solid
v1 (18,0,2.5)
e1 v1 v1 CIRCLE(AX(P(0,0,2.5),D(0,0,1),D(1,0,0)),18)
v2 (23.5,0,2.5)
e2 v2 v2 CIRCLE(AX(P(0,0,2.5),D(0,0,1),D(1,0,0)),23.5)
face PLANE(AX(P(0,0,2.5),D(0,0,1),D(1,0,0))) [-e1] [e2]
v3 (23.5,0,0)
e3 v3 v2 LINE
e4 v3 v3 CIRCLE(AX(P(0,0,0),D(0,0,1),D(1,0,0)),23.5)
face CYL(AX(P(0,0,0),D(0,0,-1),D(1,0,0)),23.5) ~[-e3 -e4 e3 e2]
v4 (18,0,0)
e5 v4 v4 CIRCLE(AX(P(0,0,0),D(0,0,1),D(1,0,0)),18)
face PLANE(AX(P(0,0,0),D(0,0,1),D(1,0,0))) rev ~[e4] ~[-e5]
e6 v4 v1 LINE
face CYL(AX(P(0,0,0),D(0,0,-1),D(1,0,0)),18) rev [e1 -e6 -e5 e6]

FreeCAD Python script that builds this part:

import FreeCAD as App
import Part
import Sketcher
from FreeCAD import Vector

doc = App.newDocument("Part")
body = doc.addObject("PartDesign::Body", "Body")

# Sketch on XY plane
sketch1 = body.newObject("Sketcher::SketchObject", "Sketch")
sketch1.AttachmentSupport = (doc.getObject("XY_Plane"), [""])
sketch1.MapMode = "FlatFace"
sketch1.addGeometry(Part.Circle(Vector(0, 0, 0), Vector(0, 0, 1), 24), False)
sketch1.addGeometry(Part.Circle(Vector(0, 0, 0), Vector(0, 0, 1), 18), False)
sketch1.addConstraint(Sketcher.Constraint("Coincident", 0, 3, -1, 1))
sketch1.addConstraint(Sketcher.Constraint("Coincident", 1, 3, -1, 1))
sketch1.addConstraint(Sketcher.Constraint("Diameter", 0, 47.0))
sketch1.addConstraint(Sketcher.Constraint("Diameter", 1, 36.0))
pad1 = body.newObject("PartDesign::Pad", "Pad")
pad1.Profile = sketch1
pad1.Length = 2.5

doc.recompute()
